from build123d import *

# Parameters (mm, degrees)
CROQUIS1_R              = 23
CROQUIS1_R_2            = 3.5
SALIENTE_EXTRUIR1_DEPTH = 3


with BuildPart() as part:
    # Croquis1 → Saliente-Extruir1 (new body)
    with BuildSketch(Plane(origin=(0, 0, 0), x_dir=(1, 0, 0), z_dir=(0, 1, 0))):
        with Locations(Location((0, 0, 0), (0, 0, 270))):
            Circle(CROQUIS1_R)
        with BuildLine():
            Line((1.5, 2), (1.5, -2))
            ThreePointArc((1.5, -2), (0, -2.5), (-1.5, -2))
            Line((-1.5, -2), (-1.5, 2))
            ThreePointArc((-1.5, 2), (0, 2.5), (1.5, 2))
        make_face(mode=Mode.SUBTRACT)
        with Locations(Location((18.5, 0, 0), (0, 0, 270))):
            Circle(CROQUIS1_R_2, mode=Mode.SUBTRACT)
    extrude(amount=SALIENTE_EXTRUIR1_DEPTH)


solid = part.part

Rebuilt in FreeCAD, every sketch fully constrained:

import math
import FreeCAD as App
import Part
import Sketcher
from FreeCAD import Vector
Q = App.Units.Quantity

doc = App.newDocument("Part")
body = doc.addObject("PartDesign::Body", "Body")

# Sketch on XZ plane
sketch1 = body.newObject("Sketcher::SketchObject", "Sketch")
sketch1.AttachmentSupport = (doc.getObject("XZ_Plane"), [""])
sketch1.MapMode = "FlatFace"
sketch1.addGeometry([
    Part.Circle(Vector(0, 0, 0), Vector(0, 0, 1), 23),  # 0
    Part.ArcOfCircle(Part.Circle(Vector(0, 0, 0), Vector(0, 0, 1), 2.5), math.radians(-127), math.radians(-53)),  # 1
    Part.LineSegment(Vector(1.5, -2, 0), Vector(1.5, 2, 0)),  # 2
    Part.ArcOfCircle(Part.Circle(Vector(0, 0, 0), Vector(0, 0, 1), 2.5), math.radians(53), math.radians(127)),  # 3
    Part.LineSegment(Vector(-1.5, 2, 0), Vector(-1.5, -2, 0)),  # 4
    Part.Circle(Vector(18.5, 0, 0), Vector(0, 0, 1), 3.5),  # 5
], False)
sketch1.addConstraint([
    Sketcher.Constraint("Coincident", 1, 2, 2, 1),
    Sketcher.Constraint("Coincident", 2, 2, 3, 1),
    Sketcher.Constraint("Coincident", 3, 2, 4, 1),
    Sketcher.Constraint("Coincident", 4, 2, 1, 1),
    Sketcher.Constraint("Vertical", 2),
    Sketcher.Constraint("Vertical", 4),
    Sketcher.Constraint("Coincident", 0, 3, -1, 1),
    Sketcher.Constraint("Coincident", 1, 3, -1, 1),
    Sketcher.Constraint("Coincident", 3, 3, -1, 1),
    Sketcher.Constraint("Equal", 1, 3),
    Sketcher.Constraint("PointOnObject", 5, 3, -1),
    Sketcher.Constraint("Horizontal", 2, 2, 3, 2),
    Sketcher.Constraint("Diameter", 0, Q("46 mm")),
    Sketcher.Constraint("Diameter", 5, Q("7 mm")),
    Sketcher.Constraint("Radius", 1, Q("2.5 mm")),
    Sketcher.Constraint("DistanceY", 2, 1, 2, 2, Q("4 mm")),
    Sketcher.Constraint("DistanceX", 1, 2, 5, 3, Q("17 mm")),
])
pad1 = body.newObject("PartDesign::Pad", "Pad")
pad1.Profile = sketch1
pad1.Length = 3
pad1.Reversed = True

doc.recompute()
